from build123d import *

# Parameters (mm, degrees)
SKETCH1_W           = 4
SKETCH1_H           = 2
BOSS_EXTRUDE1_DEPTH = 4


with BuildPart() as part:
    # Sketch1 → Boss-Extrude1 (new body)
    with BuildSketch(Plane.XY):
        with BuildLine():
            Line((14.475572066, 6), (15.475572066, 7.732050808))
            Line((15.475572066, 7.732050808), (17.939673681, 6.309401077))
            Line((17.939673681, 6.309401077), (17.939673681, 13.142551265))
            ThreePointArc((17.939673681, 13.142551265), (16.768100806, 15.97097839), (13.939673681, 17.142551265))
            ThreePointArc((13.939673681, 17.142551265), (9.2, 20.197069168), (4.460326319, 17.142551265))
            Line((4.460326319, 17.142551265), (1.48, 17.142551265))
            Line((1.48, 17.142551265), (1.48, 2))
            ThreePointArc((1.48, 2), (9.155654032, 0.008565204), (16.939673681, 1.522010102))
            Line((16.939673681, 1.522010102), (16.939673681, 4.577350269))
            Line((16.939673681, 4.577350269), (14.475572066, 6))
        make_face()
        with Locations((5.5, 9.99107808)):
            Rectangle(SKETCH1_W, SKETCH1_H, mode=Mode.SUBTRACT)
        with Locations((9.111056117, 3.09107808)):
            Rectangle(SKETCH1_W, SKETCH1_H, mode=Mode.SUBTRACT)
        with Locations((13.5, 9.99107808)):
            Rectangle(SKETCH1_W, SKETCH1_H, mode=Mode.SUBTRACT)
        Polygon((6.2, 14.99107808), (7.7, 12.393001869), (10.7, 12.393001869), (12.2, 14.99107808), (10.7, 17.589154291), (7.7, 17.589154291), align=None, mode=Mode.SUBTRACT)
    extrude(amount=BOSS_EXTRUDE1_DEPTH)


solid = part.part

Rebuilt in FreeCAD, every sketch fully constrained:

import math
import FreeCAD as App
import Part
import Sketcher

V = App.Vector
Q = App.Units.Quantity

doc = App.newDocument("Part")
body = doc.addObject("PartDesign::Body", "Body")

sketch1 = body.newObject("Sketcher::SketchObject", "Sketch")
sketch1.AttachmentSupport = (doc.getObject("XY_Plane"), [""])
sketch1.MapMode = "FlatFace"
sketch1.addGeometry(Part.LineSegment(V(14.5, 6, 0), V(15.5, 7.7, 0)), False)
sketch1.addGeometry(Part.LineSegment(V(15.5, 7.7, 0), V(17.9, 6.3, 0)), False)
sketch1.addGeometry(Part.LineSegment(V(17.9, 6.3, 0), V(17.9, 13.1, 0)), False)
sketch1.addGeometry(Part.ArcOfCircle(Part.Circle(V(13.9, 13.1, 0), V(0, 0, 1), 4), math.radians(0), math.radians(90)), False)
sketch1.addGeometry(Part.ArcOfCircle(Part.Circle(V(9.2, 15, 0), V(0, 0, 1), 5.2), math.radians(24), math.radians(156)), False)
sketch1.addGeometry(Part.LineSegment(V(4.5, 17.1, 0), V(1.5, 17.1, 0)), False)
sketch1.addGeometry(Part.LineSegment(V(1.5, 17.1, 0), V(1.5, 2, 0)), False)
sketch1.addGeometry(Part.ArcOfCircle(Part.Circle(V(9.7, 17.9, 0), V(0, 0, 1), 17.9), math.radians(-117), math.radians(-66)), False)
sketch1.addGeometry(Part.LineSegment(V(16.9, 1.5, 0), V(16.9, 4.6, 0)), False)
sketch1.addGeometry(Part.LineSegment(V(16.9, 4.6, 0), V(14.5, 6, 0)), False)
sketch1.addGeometry(Part.LineSegment(V(11.1, 2.1, 0), V(7.1, 2.1, 0)), False)
sketch1.addGeometry(Part.LineSegment(V(7.1, 2.1, 0), V(7.1, 4.1, 0)), False)
sketch1.addGeometry(Part.LineSegment(V(7.1, 4.1, 0), V(11.1, 4.1, 0)), False)
sketch1.addGeometry(Part.LineSegment(V(11.1, 4.1, 0), V(11.1, 2.1, 0)), False)
sketch1.addGeometry(Part.LineSegment(V(7.5, 9, 0), V(3.5, 9, 0)), False)
sketch1.addGeometry(Part.LineSegment(V(3.5, 9, 0), V(3.5, 11, 0)), False)
sketch1.addGeometry(Part.LineSegment(V(3.5, 11, 0), V(7.5, 11, 0)), False)
sketch1.addGeometry(Part.LineSegment(V(7.5, 11, 0), V(7.5, 9, 0)), False)
sketch1.addGeometry(Part.LineSegment(V(7.7, 12.4, 0), V(6.2, 15, 0)), False)
sketch1.addGeometry(Part.LineSegment(V(6.2, 15, 0), V(7.7, 17.6, 0)), False)
sketch1.addGeometry(Part.LineSegment(V(7.7, 17.6, 0), V(10.7, 17.6, 0)), False)
sketch1.addGeometry(Part.LineSegment(V(10.7, 17.6, 0), V(12.2, 15, 0)), False)
sketch1.addGeometry(Part.LineSegment(V(12.2, 15, 0), V(10.7, 12.4, 0)), False)
sketch1.addGeometry(Part.LineSegment(V(10.7, 12.4, 0), V(7.7, 12.4, 0)), False)
sketch1.addGeometry(Part.LineSegment(V(15.5, 9, 0), V(11.5, 9, 0)), False)
sketch1.addGeometry(Part.LineSegment(V(11.5, 9, 0), V(11.5, 11, 0)), False)
sketch1.addGeometry(Part.LineSegment(V(11.5, 11, 0), V(15.5, 11, 0)), False)
sketch1.addGeometry(Part.LineSegment(V(15.5, 11, 0), V(15.5, 9, 0)), False)
sketch1.addConstraint(Sketcher.Constraint("Coincident", 0, 2, 1, 1))
sketch1.addConstraint(Sketcher.Constraint("Coincident", 1, 2, 2, 1))
sketch1.addConstraint(Sketcher.Constraint("Tangent", 2, 2, 3, 1))
sketch1.addConstraint(Sketcher.Constraint("Coincident", 3, 2, 4, 1))
sketch1.addConstraint(Sketcher.Constraint("Coincident", 4, 2, 5, 1))
sketch1.addConstraint(Sketcher.Constraint("Coincident", 5, 2, 6, 1))
sketch1.addConstraint(Sketcher.Constraint("Coincident", 6, 2, 7, 1))
sketch1.addConstraint(Sketcher.Constraint("Coincident", 7, 2, 8, 1))
sketch1.addConstraint(Sketcher.Constraint("Coincident", 8, 2, 9, 1))
sketch1.addConstraint(Sketcher.Constraint("Coincident", 9, 2, 0, 1))
sketch1.addConstraint(Sketcher.Constraint("Coincident", 10, 2, 11, 1))
sketch1.addConstraint(Sketcher.Constraint("Coincident", 11, 2, 12, 1))
sketch1.addConstraint(Sketcher.Constraint("Coincident", 12, 2, 13, 1))
sketch1.addConstraint(Sketcher.Constraint("Coincident", 13, 2, 10, 1))
sketch1.addConstraint(Sketcher.Constraint("Coincident", 14, 2, 15, 1))
sketch1.addConstraint(Sketcher.Constraint("Coincident", 15, 2, 16, 1))
sketch1.addConstraint(Sketcher.Constraint("Coincident", 16, 2, 17, 1))
sketch1.addConstraint(Sketcher.Constraint("Coincident", 17, 2, 14, 1))
sketch1.addConstraint(Sketcher.Constraint("Coincident", 18, 2, 19, 1))
sketch1.addConstraint(Sketcher.Constraint("Coincident", 19, 2, 20, 1))
sketch1.addConstraint(Sketcher.Constraint("Coincident", 20, 2, 21, 1))
sketch1.addConstraint(Sketcher.Constraint("Coincident", 21, 2, 22, 1))
sketch1.addConstraint(Sketcher.Constraint("Coincident", 22, 2, 23, 1))
sketch1.addConstraint(Sketcher.Constraint("Coincident", 23, 2, 18, 1))
sketch1.addConstraint(Sketcher.Constraint("Coincident", 24, 2, 25, 1))
sketch1.addConstraint(Sketcher.Constraint("Coincident", 25, 2, 26, 1))
sketch1.addConstraint(Sketcher.Constraint("Coincident", 26, 2, 27, 1))
sketch1.addConstraint(Sketcher.Constraint("Coincident", 27, 2, 24, 1))
sketch1.addConstraint(Sketcher.Constraint("Vertical", 2))
sketch1.addConstraint(Sketcher.Constraint("Horizontal", 5))
sketch1.addConstraint(Sketcher.Constraint("Vertical", 6))
sketch1.addConstraint(Sketcher.Constraint("Vertical", 8))
sketch1.addConstraint(Sketcher.Constraint("Horizontal", 10))
sketch1.addConstraint(Sketcher.Constraint("Vertical", 11))
sketch1.addConstraint(Sketcher.Constraint("Horizontal", 12))
sketch1.addConstraint(Sketcher.Constraint("Vertical", 13))
sketch1.addConstraint(Sketcher.Constraint("Horizontal", 14))
sketch1.addConstraint(Sketcher.Constraint("Vertical", 15))
sketch1.addConstraint(Sketcher.Constraint("Horizontal", 16))
sketch1.addConstraint(Sketcher.Constraint("Vertical", 17))
sketch1.addConstraint(Sketcher.Constraint("Horizontal", 20))
sketch1.addConstraint(Sketcher.Constraint("Horizontal", 23))
sketch1.addConstraint(Sketcher.Constraint("Horizontal", 24))
sketch1.addConstraint(Sketcher.Constraint("Vertical", 25))
sketch1.addConstraint(Sketcher.Constraint("Horizontal", 26))
sketch1.addConstraint(Sketcher.Constraint("Vertical", 27))
sketch1.addConstraint(Sketcher.Constraint("Perpendicular", 0, 1))
sketch1.addConstraint(Sketcher.Constraint("Parallel", 1, 9))
sketch1.addConstraint(Sketcher.Constraint("Perpendicular", 9, 19))
sketch1.addConstraint(Sketcher.Constraint("Parallel", 18, 21))
sketch1.addConstraint(Sketcher.Constraint("Parallel", 19, 22))
sketch1.addConstraint(Sketcher.Constraint("Horizontal", 3, 2, 4, 2))
sketch1.addConstraint(Sketcher.Constraint("Horizontal", 18, 2, 21, 2))
sketch1.addConstraint(Sketcher.Constraint("Horizontal", 17, 2, 24, 2))
sketch1.addConstraint(Sketcher.Constraint("Horizontal", 16, 2, 25, 2))
sketch1.addConstraint(Sketcher.Constraint("Vertical", 20, 2, 22, 2))
sketch1.addConstraint(Sketcher.Constraint("Vertical", 19, 2, 23, 2))
sketch1.addConstraint(Sketcher.Constraint("Equal", 12, 14))
sketch1.addConstraint(Sketcher.Constraint("Equal", 16, 24))
sketch1.addConstraint(Sketcher.Constraint("Equal", 13, 15))
sketch1.addConstraint(Sketcher.Constraint("Equal", 1, 9))
sketch1.addConstraint(Sketcher.Constraint("Radius", 3, 4.0))
sketch1.addConstraint(Sketcher.Constraint("DistanceX", 10, 2, 10, 1, 4.0))
sketch1.addConstraint(Sketcher.Constraint("DistanceX", 20, 1, 20, 2, 3.0))
sketch1.addConstraint(Sketcher.Constraint("DistanceY", 11, 1, 11, 2, 2.0))
sketch1.addConstraint(Sketcher.Constraint("Angle", 0, Q("60 deg")))
sketch1.addConstraint(Sketcher.Constraint("Distance", 0, 2.0))
sketch1.addConstraint(Sketcher.Constraint("Distance", 18, 3.0))
sketch1.addConstraint(Sketcher.Constraint("DistanceY", -1, 1, 6, 2, 2.0))
sketch1.addConstraint(Sketcher.Constraint("DistanceY", -1, 1, 9, 2, 6.0))
sketch1.addConstraint(Sketcher.Constraint("DistanceX", 3, 2, 2, 2, 4.0))
sketch1.addConstraint(Sketcher.Constraint("DistanceX", 18, 2, 4, 3, 3.0))
sketch1.addConstraint(Sketcher.Constraint("DistanceY", 16, 2, 18, 2, 4.0))
sketch1.addConstraint(Sketcher.Constraint("DistanceX", 17, 2, 24, 2, 4.0))
sketch1.addConstraint(Sketcher.Constraint("DistanceX", -1, 1, 4, 3, 9.2))
sketch1.addConstraint(Sketcher.Constraint("DistanceX", -1, 1, 14, 2, 3.5))
sketch1.addConstraint(Sketcher.Constraint("DistanceY", 11, 2, 14, 2, 4.9))
sketch1.addConstraint(Sketcher.Constraint("DistanceX", -1, 1, 5, 2, 1.48))
sketch1.addConstraint(Sketcher.Constraint("DistanceY", 3, 3, 4, 3, 1.85))
sketch1.addConstraint(Sketcher.Constraint("DistanceY", -1, 1, 22, 2, 12.393002))
sketch1.addConstraint(Sketcher.Constraint("Radius", 4, 5.204518))
sketch1.addConstraint(Sketcher.Constraint("Radius", 7, 17.932554))
sketch1.addConstraint(Sketcher.Constraint("Distance", 1, 2.845299))
sketch1.addConstraint(Sketcher.Constraint("DistanceY", 2, 1, 2, 2, 6.83315))
sketch1.addConstraint(Sketcher.Constraint("DistanceY", 8, 1, 8, 2, 3.05534))
sketch1.addConstraint(Sketcher.Constraint("DistanceX", -1, 1, 10, 2, 7.111056))
pad1 = body.newObject("PartDesign::Pad", "Pad")
pad1.Profile = sketch1
pad1.Length = 4

doc.recompute()
